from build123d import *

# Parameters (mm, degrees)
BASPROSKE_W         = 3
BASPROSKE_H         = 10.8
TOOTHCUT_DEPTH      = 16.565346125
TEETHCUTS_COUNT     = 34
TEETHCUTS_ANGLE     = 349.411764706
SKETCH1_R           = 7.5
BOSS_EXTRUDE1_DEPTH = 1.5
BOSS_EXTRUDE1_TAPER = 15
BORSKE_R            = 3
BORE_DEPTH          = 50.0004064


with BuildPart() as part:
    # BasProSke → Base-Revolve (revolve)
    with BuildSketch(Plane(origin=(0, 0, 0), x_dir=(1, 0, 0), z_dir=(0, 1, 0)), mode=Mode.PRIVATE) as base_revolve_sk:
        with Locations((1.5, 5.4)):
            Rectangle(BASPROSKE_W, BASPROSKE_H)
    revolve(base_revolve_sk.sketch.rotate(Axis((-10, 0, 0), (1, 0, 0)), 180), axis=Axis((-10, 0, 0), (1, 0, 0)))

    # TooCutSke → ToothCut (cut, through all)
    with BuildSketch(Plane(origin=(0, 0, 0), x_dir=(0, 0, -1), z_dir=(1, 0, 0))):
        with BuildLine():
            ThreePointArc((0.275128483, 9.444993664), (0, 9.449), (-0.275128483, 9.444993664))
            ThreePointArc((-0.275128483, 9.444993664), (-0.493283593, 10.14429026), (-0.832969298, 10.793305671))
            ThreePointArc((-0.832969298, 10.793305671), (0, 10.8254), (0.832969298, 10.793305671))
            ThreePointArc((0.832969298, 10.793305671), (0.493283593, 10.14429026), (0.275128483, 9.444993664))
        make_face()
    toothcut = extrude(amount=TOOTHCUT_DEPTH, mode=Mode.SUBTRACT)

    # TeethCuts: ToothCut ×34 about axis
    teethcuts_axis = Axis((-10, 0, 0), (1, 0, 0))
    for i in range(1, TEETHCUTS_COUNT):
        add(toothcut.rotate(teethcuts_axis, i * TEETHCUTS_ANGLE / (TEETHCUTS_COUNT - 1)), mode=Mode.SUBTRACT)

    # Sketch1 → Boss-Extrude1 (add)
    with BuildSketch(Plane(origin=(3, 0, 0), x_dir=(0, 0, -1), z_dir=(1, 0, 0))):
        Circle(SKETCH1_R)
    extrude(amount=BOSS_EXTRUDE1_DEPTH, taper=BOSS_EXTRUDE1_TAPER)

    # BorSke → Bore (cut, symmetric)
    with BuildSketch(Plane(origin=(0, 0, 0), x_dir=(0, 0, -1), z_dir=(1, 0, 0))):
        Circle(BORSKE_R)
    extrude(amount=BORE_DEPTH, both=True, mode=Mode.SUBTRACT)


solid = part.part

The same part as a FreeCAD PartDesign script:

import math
import FreeCAD as App
import Part
import Sketcher

doc = App.newDocument("Part")
body = doc.addObject("PartDesign::Body", "Body")

# Sketch on XZ plane
sketch1 = body.newObject("Sketcher::SketchObject", "Sketch")
sketch1.AttachmentSupport = (doc.getObject("XZ_Plane"), [""])
sketch1.MapMode = "FlatFace"
sketch1.addGeometry(Part.LineSegment(App.Vector(0, -10.8, 0), App.Vector(0, 0, 0)), False)
sketch1.addGeometry(Part.LineSegment(App.Vector(0, 0, 0), App.Vector(3, 0, 0)), False)
sketch1.addGeometry(Part.LineSegment(App.Vector(3, 0, 0), App.Vector(3, -10.8, 0)), False)
sketch1.addGeometry(Part.LineSegment(App.Vector(3, -10.8, 0), App.Vector(0, -10.8, 0)), False)
sketch1.addConstraint(Sketcher.Constraint("Coincident", 0, 2, 1, 1))
sketch1.addConstraint(Sketcher.Constraint("Coincident", 1, 2, 2, 1))
sketch1.addConstraint(Sketcher.Constraint("Coincident", 2, 2, 3, 1))
sketch1.addConstraint(Sketcher.Constraint("Coincident", 3, 2, 0, 1))
sketch1.addConstraint(Sketcher.Constraint("Vertical", 0))
sketch1.addConstraint(Sketcher.Constraint("Horizontal", 1))
sketch1.addConstraint(Sketcher.Constraint("Vertical", 2))
sketch1.addConstraint(Sketcher.Constraint("Horizontal", 3))
sketch1.addConstraint(Sketcher.Constraint("Coincident", 0, 2, -1, 1))
sketch1.addConstraint(Sketcher.Constraint("DistanceX", 1, 1, 1, 2, 3.0))
sketch1.addConstraint(Sketcher.Constraint("DistanceY", 0, 1, 0, 2, 10.8))
revolution = body.newObject("PartDesign::Revolution", "Revolution")
revolution.Profile = sketch1
revolution.ReferenceAxis = (sketch1, ["H_Axis"])
revolution.Angle = 360

# Sketch on YZ plane
sketch2 = body.newObject("Sketcher::SketchObject", "Sketch001")
sketch2.AttachmentSupport = (doc.getObject("YZ_Plane"), [""])
sketch2.MapMode = "FlatFace"
sketch2.addGeometry(Part.ArcOfCircle(Part.Circle(App.Vector(0, 0, 0), App.Vector(0, 0, 1), 9.4), math.radians(-1.67), math.radians(1.67)), False)
sketch2.addGeometry(Part.ArcOfCircle(Part.Circle(App.Vector(8.6, -4.3, 0), App.Vector(0, 0, 1), 4.1), math.radians(57), math.radians(78)), False)
sketch2.addGeometry(Part.ArcOfCircle(Part.Circle(App.Vector(0, 0, 0), App.Vector(0, 0, 1), 10.8), math.radians(-4.41), math.radians(4.41)), False)
sketch2.addGeometry(Part.ArcOfCircle(Part.Circle(App.Vector(8.6, 4.3, 0), App.Vector(0, 0, 1), 4.1), math.radians(-78), math.radians(-57)), False)
sketch2.addConstraint(Sketcher.Constraint("Coincident", 0, 1, 1, 2))
sketch2.addConstraint(Sketcher.Constraint("Coincident", 1, 1, 2, 1))
sketch2.addConstraint(Sketcher.Constraint("Coincident", 2, 2, 3, 2))
sketch2.addConstraint(Sketcher.Constraint("Coincident", 3, 1, 0, 2))
sketch2.addConstraint(Sketcher.Constraint("Coincident", 0, 3, -1, 1))
sketch2.addConstraint(Sketcher.Constraint("Coincident", 2, 3, -1, 1))
sketch2.addConstraint(Sketcher.Constraint("Equal", 1, 3))
sketch2.addConstraint(Sketcher.Constraint("Symmetric", 1, 3, 3, 3, -1))
sketch2.addConstraint(Sketcher.Constraint("Radius", 1, 4.08))
sketch2.addConstraint(Sketcher.Constraint("Radius", 0, 9.448999))
sketch2.addConstraint(Sketcher.Constraint("Radius", 2, 10.8254))
sketch2.addConstraint(Sketcher.Constraint("DistanceX", -1, 1, 1, 3, 8.584489))
sketch2.addConstraint(Sketcher.Constraint("DistanceY", 0, 1, -1, 1, 0.275128))
pocket1 = body.newObject("PartDesign::Pocket", "Pocket")
pocket1.Profile = sketch2
pocket1.Type = "ThroughAll"
pocket1.Reversed = True
doc.recompute()

polarpattern = body.newObject("PartDesign::PolarPattern", "PolarPattern")
polarpattern.Originals = [pocket1]
polarpattern.Axis = (doc.getObject("X_Axis"), [""])
polarpattern.Angle = 360
polarpattern.Occurrences = 34
body.Tip = polarpattern

# Sketch on YZ plane
sketch3 = body.newObject("Sketcher::SketchObject", "Sketch002")
sketch3.AttachmentSupport = (doc.getObject("YZ_Plane"), [""])
sketch3.MapMode = "FlatFace"
sketch3.AttachmentOffset = App.Placement(App.Vector(0, 0, 3), App.Rotation())
sketch3.addGeometry(Part.Circle(App.Vector(0, 0, 0), App.Vector(0, 0, 1), 8), False)
sketch3.addConstraint(Sketcher.Constraint("Coincident", 0, 3, -1, 1))
sketch3.addConstraint(Sketcher.Constraint("Diameter", 0, 15.0))
pad1 = body.newObject("PartDesign::Pad", "Pad")
pad1.Profile = sketch3
pad1.Length = 1.5
pad1.TaperAngle = -15

# Sketch on YZ plane
sketch4 = body.newObject("Sketcher::SketchObject", "Sketch003")
sketch4.AttachmentSupport = (doc.getObject("YZ_Plane"), [""])
sketch4.MapMode = "FlatFace"
sketch4.addGeometry(Part.Circle(App.Vector(0, 0, 0), App.Vector(0, 0, 1), 3), False)
sketch4.addConstraint(Sketcher.Constraint("Coincident", 0, 3, -1, 1))
sketch4.addConstraint(Sketcher.Constraint("Diameter", 0, 6.0))
pocket2 = body.newObject("PartDesign::Pocket", "Pocket001")
pocket2.Profile = sketch4
pocket2.Length = 100.000813
pocket2.Midplane = True

doc.recompute()
